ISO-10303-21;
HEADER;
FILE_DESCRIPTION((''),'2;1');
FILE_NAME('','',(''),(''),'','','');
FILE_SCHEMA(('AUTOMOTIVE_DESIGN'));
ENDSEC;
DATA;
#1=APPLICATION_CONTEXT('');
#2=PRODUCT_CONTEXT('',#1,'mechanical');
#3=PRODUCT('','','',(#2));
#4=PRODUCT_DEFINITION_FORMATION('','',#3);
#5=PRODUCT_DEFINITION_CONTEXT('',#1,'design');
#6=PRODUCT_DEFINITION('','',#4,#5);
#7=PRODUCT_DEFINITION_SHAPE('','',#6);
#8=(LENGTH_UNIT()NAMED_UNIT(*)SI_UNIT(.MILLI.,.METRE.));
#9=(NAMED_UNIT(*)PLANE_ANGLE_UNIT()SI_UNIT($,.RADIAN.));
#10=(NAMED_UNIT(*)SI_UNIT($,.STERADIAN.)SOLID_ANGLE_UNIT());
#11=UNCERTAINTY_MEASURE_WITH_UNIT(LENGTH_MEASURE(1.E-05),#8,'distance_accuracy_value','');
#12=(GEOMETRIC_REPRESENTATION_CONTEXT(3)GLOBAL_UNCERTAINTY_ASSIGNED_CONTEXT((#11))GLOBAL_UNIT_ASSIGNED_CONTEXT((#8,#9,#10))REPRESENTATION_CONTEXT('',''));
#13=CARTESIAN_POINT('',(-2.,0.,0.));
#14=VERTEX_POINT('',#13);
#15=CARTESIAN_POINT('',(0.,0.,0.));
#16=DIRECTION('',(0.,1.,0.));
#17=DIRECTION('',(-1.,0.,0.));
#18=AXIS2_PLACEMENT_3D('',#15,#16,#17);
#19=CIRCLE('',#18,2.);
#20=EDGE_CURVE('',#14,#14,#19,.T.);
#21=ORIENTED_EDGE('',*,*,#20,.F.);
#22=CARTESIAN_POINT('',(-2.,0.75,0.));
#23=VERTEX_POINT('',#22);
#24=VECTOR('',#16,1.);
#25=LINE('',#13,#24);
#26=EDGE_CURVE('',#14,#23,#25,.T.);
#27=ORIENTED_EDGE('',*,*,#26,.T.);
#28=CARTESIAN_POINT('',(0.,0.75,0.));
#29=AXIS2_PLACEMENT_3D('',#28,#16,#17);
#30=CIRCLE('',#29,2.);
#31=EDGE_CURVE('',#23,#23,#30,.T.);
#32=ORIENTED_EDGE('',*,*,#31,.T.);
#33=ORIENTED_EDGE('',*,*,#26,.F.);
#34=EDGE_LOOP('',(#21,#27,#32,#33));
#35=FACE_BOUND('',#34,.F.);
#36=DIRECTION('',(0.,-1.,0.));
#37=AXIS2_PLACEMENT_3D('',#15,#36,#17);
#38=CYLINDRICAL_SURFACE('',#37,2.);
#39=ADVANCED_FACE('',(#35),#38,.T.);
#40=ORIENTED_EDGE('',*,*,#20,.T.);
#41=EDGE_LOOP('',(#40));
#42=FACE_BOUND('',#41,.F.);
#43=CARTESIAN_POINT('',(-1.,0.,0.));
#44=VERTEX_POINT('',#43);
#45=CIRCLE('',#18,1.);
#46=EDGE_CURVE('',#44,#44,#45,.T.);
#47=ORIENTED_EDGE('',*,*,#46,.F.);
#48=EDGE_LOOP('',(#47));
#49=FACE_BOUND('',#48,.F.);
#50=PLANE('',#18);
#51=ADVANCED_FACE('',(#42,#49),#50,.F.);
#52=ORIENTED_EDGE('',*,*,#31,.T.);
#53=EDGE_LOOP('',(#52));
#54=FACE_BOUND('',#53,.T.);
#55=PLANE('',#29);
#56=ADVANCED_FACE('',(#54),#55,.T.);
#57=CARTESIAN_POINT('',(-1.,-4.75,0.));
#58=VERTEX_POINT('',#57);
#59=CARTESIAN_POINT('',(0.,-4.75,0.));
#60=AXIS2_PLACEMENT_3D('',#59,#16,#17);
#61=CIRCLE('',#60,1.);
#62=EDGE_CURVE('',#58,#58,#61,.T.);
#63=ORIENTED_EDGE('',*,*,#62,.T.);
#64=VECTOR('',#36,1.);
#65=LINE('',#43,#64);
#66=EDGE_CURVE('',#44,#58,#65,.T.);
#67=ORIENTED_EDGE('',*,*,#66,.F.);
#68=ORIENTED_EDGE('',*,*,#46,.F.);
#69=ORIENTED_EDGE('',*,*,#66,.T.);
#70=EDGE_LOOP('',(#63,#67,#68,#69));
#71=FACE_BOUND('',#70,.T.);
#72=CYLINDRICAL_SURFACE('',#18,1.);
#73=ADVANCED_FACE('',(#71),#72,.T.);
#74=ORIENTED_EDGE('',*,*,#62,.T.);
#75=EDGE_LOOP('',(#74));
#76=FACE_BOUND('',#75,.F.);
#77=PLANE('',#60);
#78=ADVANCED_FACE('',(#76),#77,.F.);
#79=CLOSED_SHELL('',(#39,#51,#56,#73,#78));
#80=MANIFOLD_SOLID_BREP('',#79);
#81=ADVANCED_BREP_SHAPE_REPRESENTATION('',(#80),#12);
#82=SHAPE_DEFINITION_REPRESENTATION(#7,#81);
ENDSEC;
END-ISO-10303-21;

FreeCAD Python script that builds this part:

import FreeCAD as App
import Part
import Sketcher

V = App.Vector

doc = App.newDocument("Part")
body = doc.addObject("PartDesign::Body", "Body")

# Sketch on XZ plane
sketch1 = doc.addObject("Sketcher::SketchObject", "Sketch")
body.addObject(sketch1)
sketch1.AttachmentSupport = (doc.XZ_Plane, [""])
sketch1.MapMode = "FlatFace"
sketch1.addGeometry(Part.Circle(V(0, 0, 0), V(0, 0, 1), 2), False)
sketch1.addConstraint(Sketcher.Constraint("Coincident", 0, 3, -1, 1))
sketch1.addConstraint(Sketcher.Constraint("Diameter", 0, 4.0))
pad1 = doc.addObject("PartDesign::Pad", "Pad")
body.addObject(pad1)
pad1.Profile = sketch1
pad1.Length = 0.75
pad1.Reversed = True

# Sketch on XZ plane
sketch2 = doc.addObject("Sketcher::SketchObject", "Sketch001")
body.addObject(sketch2)
sketch2.AttachmentSupport = (doc.XZ_Plane, [""])
sketch2.MapMode = "FlatFace"
sketch2.addGeometry(Part.Circle(V(0, 0, 0), V(0, 0, 1), 1), False)
sketch2.addConstraint(Sketcher.Constraint("Coincident", 0, 3, -1, 1))
sketch2.addConstraint(Sketcher.Constraint("Diameter", 0, 2.0))
pad2 = doc.addObject("PartDesign::Pad", "Pad001")
body.addObject(pad2)
pad2.Profile = sketch2
pad2.Length = 4.75

doc.recompute()
